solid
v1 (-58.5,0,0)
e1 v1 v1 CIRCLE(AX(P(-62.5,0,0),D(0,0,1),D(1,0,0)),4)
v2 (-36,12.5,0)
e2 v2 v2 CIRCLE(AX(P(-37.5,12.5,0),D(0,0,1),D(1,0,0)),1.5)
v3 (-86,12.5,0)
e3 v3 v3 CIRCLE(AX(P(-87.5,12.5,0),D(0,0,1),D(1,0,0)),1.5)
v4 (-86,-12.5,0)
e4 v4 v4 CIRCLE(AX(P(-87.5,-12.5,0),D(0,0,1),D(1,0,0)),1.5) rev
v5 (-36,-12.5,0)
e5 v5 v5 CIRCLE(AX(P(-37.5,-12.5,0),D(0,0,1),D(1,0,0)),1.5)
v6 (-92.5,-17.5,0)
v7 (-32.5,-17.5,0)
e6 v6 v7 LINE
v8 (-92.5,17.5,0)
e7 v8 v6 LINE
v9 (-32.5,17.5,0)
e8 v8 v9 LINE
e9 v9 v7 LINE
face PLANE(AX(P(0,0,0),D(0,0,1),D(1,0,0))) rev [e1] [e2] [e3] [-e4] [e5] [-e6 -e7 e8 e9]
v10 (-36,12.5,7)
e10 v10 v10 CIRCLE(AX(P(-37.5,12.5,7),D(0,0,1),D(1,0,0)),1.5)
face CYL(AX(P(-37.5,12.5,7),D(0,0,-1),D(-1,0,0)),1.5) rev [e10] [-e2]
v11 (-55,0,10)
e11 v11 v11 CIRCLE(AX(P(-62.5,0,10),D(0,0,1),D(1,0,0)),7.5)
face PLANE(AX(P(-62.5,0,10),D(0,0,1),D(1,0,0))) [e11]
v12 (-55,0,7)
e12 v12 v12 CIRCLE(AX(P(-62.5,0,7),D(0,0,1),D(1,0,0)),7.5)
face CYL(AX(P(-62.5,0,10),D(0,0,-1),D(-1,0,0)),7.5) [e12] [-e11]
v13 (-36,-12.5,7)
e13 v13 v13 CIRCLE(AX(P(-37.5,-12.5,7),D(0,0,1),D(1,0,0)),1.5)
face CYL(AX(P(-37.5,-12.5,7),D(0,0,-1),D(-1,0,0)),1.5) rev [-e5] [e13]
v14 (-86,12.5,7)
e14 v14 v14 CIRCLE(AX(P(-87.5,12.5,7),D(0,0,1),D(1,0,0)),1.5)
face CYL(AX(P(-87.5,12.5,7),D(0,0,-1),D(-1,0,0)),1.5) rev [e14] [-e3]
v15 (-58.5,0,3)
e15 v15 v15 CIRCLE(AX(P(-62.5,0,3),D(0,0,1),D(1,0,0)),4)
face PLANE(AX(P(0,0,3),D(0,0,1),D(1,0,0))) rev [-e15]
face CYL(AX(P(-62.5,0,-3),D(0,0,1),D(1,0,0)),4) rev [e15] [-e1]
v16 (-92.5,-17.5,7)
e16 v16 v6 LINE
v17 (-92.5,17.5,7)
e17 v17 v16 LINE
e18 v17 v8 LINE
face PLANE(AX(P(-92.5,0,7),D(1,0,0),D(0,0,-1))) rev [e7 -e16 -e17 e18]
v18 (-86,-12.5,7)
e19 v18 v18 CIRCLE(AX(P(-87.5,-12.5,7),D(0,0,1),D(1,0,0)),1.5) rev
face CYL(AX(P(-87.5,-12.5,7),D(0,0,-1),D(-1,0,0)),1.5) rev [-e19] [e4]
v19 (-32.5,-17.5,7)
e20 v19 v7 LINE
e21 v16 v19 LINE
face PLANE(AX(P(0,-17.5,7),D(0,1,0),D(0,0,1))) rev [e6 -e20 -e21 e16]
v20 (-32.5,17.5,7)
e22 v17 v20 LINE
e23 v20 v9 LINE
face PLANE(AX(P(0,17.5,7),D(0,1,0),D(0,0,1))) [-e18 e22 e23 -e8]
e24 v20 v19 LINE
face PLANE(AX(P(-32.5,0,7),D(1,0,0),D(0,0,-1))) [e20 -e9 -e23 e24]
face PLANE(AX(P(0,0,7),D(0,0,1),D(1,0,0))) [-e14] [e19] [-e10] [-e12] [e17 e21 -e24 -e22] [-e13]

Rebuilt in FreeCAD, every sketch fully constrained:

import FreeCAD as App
import Part
import Sketcher

doc = App.newDocument("Part")
body = doc.addObject("PartDesign::Body", "Body")

# Sketch on XY plane
sketch1 = doc.addObject("Sketcher::SketchObject", "Sketch")
body.addObject(sketch1)
sketch1.AttachmentSupport = (doc.XY_Plane, [""])
sketch1.MapMode = "FlatFace"
sketch1.addGeometry(Part.LineSegment(App.Vector(-92.5, 17.5, 0), App.Vector(-92.5, -17.5, 0)), False)
sketch1.addGeometry(Part.LineSegment(App.Vector(-92.5, -17.5, 0), App.Vector(-32.5, -17.5, 0)), False)
sketch1.addGeometry(Part.LineSegment(App.Vector(-32.5, -17.5, 0), App.Vector(-32.5, 17.5, 0)), False)
sketch1.addGeometry(Part.LineSegment(App.Vector(-32.5, 17.5, 0), App.Vector(-92.5, 17.5, 0)), False)
sketch1.addGeometry(Part.Circle(App.Vector(-87.5, -12.5, 0), App.Vector(0, 0, 1), 1.5), False)
sketch1.addGeometry(Part.Circle(App.Vector(-37.5, -12.5, 0), App.Vector(0, 0, 1), 1.5), False)
sketch1.addGeometry(Part.Circle(App.Vector(-87.5, 12.5, 0), App.Vector(0, 0, 1), 1.5), False)
sketch1.addGeometry(Part.Circle(App.Vector(-37.5, 12.5, 0), App.Vector(0, 0, 1), 1.5), False)
sketch1.addConstraint(Sketcher.Constraint("Coincident", 0, 2, 1, 1))
sketch1.addConstraint(Sketcher.Constraint("Coincident", 1, 2, 2, 1))
sketch1.addConstraint(Sketcher.Constraint("Coincident", 2, 2, 3, 1))
sketch1.addConstraint(Sketcher.Constraint("Coincident", 3, 2, 0, 1))
sketch1.addConstraint(Sketcher.Constraint("Vertical", 0))
sketch1.addConstraint(Sketcher.Constraint("Horizontal", 1))
sketch1.addConstraint(Sketcher.Constraint("Vertical", 2))
sketch1.addConstraint(Sketcher.Constraint("Horizontal", 3))
sketch1.addConstraint(Sketcher.Constraint("Equal", 4, 5))
sketch1.addConstraint(Sketcher.Constraint("Equal", 5, 6))
sketch1.addConstraint(Sketcher.Constraint("Equal", 6, 7))
sketch1.addConstraint(Sketcher.Constraint("Symmetric", 4, 3, 6, 3, -1))
sketch1.addConstraint(Sketcher.Constraint("Symmetric", 5, 3, 7, 3, -1))
sketch1.addConstraint(Sketcher.Constraint("Horizontal", 4, 3, 5, 3))
sketch1.addConstraint(Sketcher.Constraint("Diameter", 4, 3.0))
sketch1.addConstraint(Sketcher.Constraint("DistanceX", 1, 1, 1, 2, 60.0))
sketch1.addConstraint(Sketcher.Constraint("DistanceY", 0, 2, 0, 1, 35.0))
sketch1.addConstraint(Sketcher.Constraint("DistanceX", 4, 3, 5, 3, 50.0))
sketch1.addConstraint(Sketcher.Constraint("DistanceY", 4, 3, 6, 3, 25.0))
sketch1.addConstraint(Sketcher.Constraint("DistanceX", 0, 2, 4, 3, 5.0))
sketch1.addConstraint(Sketcher.Constraint("DistanceY", 0, 2, 4, 3, 5.0))
sketch1.addConstraint(Sketcher.Constraint("DistanceX", 4, 3, -1, 1, 87.5))
pad1 = doc.addObject("PartDesign::Pad", "Pad")
body.addObject(pad1)
pad1.Profile = sketch1
pad1.Length = 7

# Sketch on XY plane
sketch2 = doc.addObject("Sketcher::SketchObject", "Sketch001")
body.addObject(sketch2)
sketch2.AttachmentSupport = (doc.XY_Plane, [""])
sketch2.MapMode = "FlatFace"
sketch2.AttachmentOffset = App.Placement(App.Vector(0, 0, 7), App.Rotation())
sketch2.addGeometry(Part.Circle(App.Vector(-62, 0, 0), App.Vector(0, 0, 1), 8), False)
sketch2.addConstraint(Sketcher.Constraint("PointOnObject", 0, 3, -1))
sketch2.addConstraint(Sketcher.Constraint("Diameter", 0, 15.0))
sketch2.addConstraint(Sketcher.Constraint("DistanceX", 0, 3, -1, 1, 62.5))
pad2 = doc.addObject("PartDesign::Pad", "Pad001")
body.addObject(pad2)
pad2.Profile = sketch2
pad2.Length = 3

# Sketch on XY plane
sketch3 = doc.addObject("Sketcher::SketchObject", "Sketch002")
body.addObject(sketch3)
sketch3.AttachmentSupport = (doc.XY_Plane, [""])
sketch3.MapMode = "FlatFace"
sketch3.addGeometry(Part.Circle(App.Vector(-62.5, 0, 0), App.Vector(0, 0, 1), 4), False)
sketch3.addConstraint(Sketcher.Constraint("PointOnObject", 0, 3, -1))
sketch3.addConstraint(Sketcher.Constraint("Diameter", 0, 8.0))
sketch3.addConstraint(Sketcher.Constraint("DistanceX", 0, 3, -1, 1, 62.5))
pocket1 = doc.addObject("PartDesign::Pocket", "Pocket")
body.addObject(pocket1)
pocket1.Profile = sketch3
pocket1.Type = "TwoLengths"
pocket1.Length = 3
pocket1.Length2 = 3
pocket1.Reversed = True

doc.recompute()
